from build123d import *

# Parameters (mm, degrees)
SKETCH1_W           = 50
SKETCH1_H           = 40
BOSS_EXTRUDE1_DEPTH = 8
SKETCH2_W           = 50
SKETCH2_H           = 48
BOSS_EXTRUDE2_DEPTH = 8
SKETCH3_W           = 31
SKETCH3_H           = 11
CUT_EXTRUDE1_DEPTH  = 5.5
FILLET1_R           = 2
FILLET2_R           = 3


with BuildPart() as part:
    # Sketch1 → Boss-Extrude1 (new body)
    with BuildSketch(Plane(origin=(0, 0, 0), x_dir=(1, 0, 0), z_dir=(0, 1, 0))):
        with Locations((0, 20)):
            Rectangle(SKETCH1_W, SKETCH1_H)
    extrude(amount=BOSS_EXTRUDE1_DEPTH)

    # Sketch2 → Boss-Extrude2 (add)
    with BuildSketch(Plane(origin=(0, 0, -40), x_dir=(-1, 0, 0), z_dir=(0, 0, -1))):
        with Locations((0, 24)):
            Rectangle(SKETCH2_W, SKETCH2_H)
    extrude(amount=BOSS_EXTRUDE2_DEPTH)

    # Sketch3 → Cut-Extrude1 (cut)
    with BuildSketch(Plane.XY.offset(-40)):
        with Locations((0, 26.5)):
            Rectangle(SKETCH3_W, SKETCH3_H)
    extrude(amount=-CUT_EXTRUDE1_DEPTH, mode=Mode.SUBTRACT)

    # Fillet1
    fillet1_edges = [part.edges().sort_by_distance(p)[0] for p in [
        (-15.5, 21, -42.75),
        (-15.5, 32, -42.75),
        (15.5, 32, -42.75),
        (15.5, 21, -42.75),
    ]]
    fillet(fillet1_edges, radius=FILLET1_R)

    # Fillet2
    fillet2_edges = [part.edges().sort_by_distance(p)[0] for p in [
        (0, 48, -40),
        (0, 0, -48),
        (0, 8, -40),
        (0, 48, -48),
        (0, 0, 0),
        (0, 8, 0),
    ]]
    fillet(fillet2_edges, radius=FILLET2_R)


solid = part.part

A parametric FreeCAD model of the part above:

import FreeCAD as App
import Part
import Sketcher
Q = App.Units.Quantity


def edges_at(feature, points):
    """Names of the edges that pass closest to the given points."""
    edges = feature.Shape.Edges
    near = lambda p: min(range(len(edges)), key=lambda i: edges[i].distToShape(Part.Vertex(*p))[0])
    return sorted({f"Edge{near(p) + 1}" for p in points})

doc = App.newDocument("Part")
body = doc.addObject("PartDesign::Body", "Body")

sketch1 = body.newObject("Sketcher::SketchObject", "Sketch")
sketch1.AttachmentSupport = (doc.getObject("XZ_Plane"), [""])
sketch1.MapMode = "FlatFace"
sketch1.addGeometry([
    Part.LineSegment(App.Vector(-25, -40, 0), App.Vector(-25, 0, 0)),
    Part.LineSegment(App.Vector(-25, 0, 0), App.Vector(25, 0, 0)),
    Part.LineSegment(App.Vector(25, 0, 0), App.Vector(25, -40, 0)),
    Part.LineSegment(App.Vector(25, -40, 0), App.Vector(-25, -40, 0)),
], False)
sketch1.addConstraint([
    Sketcher.Constraint("Coincident", 0, 2, 1, 1),
    Sketcher.Constraint("Coincident", 1, 2, 2, 1),
    Sketcher.Constraint("Coincident", 2, 2, 3, 1),
    Sketcher.Constraint("Coincident", 3, 2, 0, 1),
    Sketcher.Constraint("Vertical", 0),
    Sketcher.Constraint("Horizontal", 1),
    Sketcher.Constraint("Vertical", 2),
    Sketcher.Constraint("Horizontal", 3),
    Sketcher.Constraint("Symmetric", 0, 2, 1, 2, -1, 1),
    Sketcher.Constraint("DistanceX", 1, 1, 1, 2, Q("50 mm")),
    Sketcher.Constraint("DistanceY", 0, 1, 0, 2, Q("40 mm")),
])
pad1 = body.newObject("PartDesign::Pad", "Pad")
pad1.Profile = sketch1
pad1.Length = 8
pad1.Reversed = True

sketch2 = body.newObject("Sketcher::SketchObject", "Sketch001")
sketch2.AttachmentSupport = (doc.getObject("XY_Plane"), [""])
sketch2.MapMode = "FlatFace"
sketch2.AttachmentOffset = App.Placement(App.Vector(0, 0, -40), App.Rotation())
sketch2.addGeometry([
    Part.LineSegment(App.Vector(25, 48, 0), App.Vector(25, 0, 0)),
    Part.LineSegment(App.Vector(25, 0, 0), App.Vector(-25, 0, 0)),
    Part.LineSegment(App.Vector(-25, 0, 0), App.Vector(-25, 48, 0)),
    Part.LineSegment(App.Vector(-25, 48, 0), App.Vector(25, 48, 0)),
], False)
sketch2.addConstraint([
    Sketcher.Constraint("Coincident", 0, 2, 1, 1),
    Sketcher.Constraint("Coincident", 1, 2, 2, 1),
    Sketcher.Constraint("Coincident", 2, 2, 3, 1),
    Sketcher.Constraint("Coincident", 3, 2, 0, 1),
    Sketcher.Constraint("Vertical", 0),
    Sketcher.Constraint("Horizontal", 1),
    Sketcher.Constraint("Vertical", 2),
    Sketcher.Constraint("Horizontal", 3),
    Sketcher.Constraint("Symmetric", 0, 2, 1, 2, -1, 1),
    Sketcher.Constraint("DistanceX", 1, 2, 1, 1, Q("50 mm")),
    Sketcher.Constraint("DistanceY", 0, 2, 0, 1, Q("48 mm")),
])
pad2 = body.newObject("PartDesign::Pad", "Pad001")
pad2.Profile = sketch2
pad2.Length = 8
pad2.Reversed = True

sketch3 = body.newObject("Sketcher::SketchObject", "Sketch002")
sketch3.AttachmentSupport = (doc.getObject("XY_Plane"), [""])
sketch3.MapMode = "FlatFace"
sketch3.AttachmentOffset = App.Placement(App.Vector(0, 0, -40), App.Rotation())
sketch3.addGeometry([
    Part.LineSegment(App.Vector(-16, 32, 0), App.Vector(-16, 21, 0)),
    Part.LineSegment(App.Vector(-16, 21, 0), App.Vector(16, 21, 0)),
    Part.LineSegment(App.Vector(16, 21, 0), App.Vector(16, 32, 0)),
    Part.LineSegment(App.Vector(16, 32, 0), App.Vector(-16, 32, 0)),
], False)
sketch3.addConstraint([
    Sketcher.Constraint("Coincident", 0, 2, 1, 1),
    Sketcher.Constraint("Coincident", 1, 2, 2, 1),
    Sketcher.Constraint("Coincident", 2, 2, 3, 1),
    Sketcher.Constraint("Coincident", 3, 2, 0, 1),
    Sketcher.Constraint("Vertical", 0),
    Sketcher.Constraint("Horizontal", 1),
    Sketcher.Constraint("Vertical", 2),
    Sketcher.Constraint("Horizontal", 3),
    Sketcher.Constraint("DistanceX", 1, 1, 1, 2, Q("31 mm")),
    Sketcher.Constraint("DistanceY", 0, 2, 0, 1, Q("11 mm")),
    Sketcher.Constraint("DistanceY", -1, 1, 0, 2, Q("21 mm")),
    Sketcher.Constraint("DistanceX", 0, 2, -1, 1, Q("15.5 mm")),
])
pocket1 = body.newObject("PartDesign::Pocket", "Pocket")
pocket1.Profile = sketch3
pocket1.Length = 5.5
doc.recompute()

fillet = body.newObject("PartDesign::Fillet", "Fillet")
fillet.Base = (pocket1, edges_at(pocket1, [
    (-15.5, 21, -42.75),
    (-15.5, 32, -42.75),
    (15.5, 32, -42.75),
    (15.5, 21, -42.75),
]))
fillet.Radius = 2
doc.recompute()

fillet2 = body.newObject("PartDesign::Fillet", "Fillet001")
fillet2.Base = (fillet, edges_at(fillet, [
    (0, 48, -40),
    (0, 0, -48),
    (0, 8, -40),
    (0, 48, -48),
    (0, 0, 0),
    (0, 8, 0),
]))
fillet2.Radius = 3

doc.recompute()
